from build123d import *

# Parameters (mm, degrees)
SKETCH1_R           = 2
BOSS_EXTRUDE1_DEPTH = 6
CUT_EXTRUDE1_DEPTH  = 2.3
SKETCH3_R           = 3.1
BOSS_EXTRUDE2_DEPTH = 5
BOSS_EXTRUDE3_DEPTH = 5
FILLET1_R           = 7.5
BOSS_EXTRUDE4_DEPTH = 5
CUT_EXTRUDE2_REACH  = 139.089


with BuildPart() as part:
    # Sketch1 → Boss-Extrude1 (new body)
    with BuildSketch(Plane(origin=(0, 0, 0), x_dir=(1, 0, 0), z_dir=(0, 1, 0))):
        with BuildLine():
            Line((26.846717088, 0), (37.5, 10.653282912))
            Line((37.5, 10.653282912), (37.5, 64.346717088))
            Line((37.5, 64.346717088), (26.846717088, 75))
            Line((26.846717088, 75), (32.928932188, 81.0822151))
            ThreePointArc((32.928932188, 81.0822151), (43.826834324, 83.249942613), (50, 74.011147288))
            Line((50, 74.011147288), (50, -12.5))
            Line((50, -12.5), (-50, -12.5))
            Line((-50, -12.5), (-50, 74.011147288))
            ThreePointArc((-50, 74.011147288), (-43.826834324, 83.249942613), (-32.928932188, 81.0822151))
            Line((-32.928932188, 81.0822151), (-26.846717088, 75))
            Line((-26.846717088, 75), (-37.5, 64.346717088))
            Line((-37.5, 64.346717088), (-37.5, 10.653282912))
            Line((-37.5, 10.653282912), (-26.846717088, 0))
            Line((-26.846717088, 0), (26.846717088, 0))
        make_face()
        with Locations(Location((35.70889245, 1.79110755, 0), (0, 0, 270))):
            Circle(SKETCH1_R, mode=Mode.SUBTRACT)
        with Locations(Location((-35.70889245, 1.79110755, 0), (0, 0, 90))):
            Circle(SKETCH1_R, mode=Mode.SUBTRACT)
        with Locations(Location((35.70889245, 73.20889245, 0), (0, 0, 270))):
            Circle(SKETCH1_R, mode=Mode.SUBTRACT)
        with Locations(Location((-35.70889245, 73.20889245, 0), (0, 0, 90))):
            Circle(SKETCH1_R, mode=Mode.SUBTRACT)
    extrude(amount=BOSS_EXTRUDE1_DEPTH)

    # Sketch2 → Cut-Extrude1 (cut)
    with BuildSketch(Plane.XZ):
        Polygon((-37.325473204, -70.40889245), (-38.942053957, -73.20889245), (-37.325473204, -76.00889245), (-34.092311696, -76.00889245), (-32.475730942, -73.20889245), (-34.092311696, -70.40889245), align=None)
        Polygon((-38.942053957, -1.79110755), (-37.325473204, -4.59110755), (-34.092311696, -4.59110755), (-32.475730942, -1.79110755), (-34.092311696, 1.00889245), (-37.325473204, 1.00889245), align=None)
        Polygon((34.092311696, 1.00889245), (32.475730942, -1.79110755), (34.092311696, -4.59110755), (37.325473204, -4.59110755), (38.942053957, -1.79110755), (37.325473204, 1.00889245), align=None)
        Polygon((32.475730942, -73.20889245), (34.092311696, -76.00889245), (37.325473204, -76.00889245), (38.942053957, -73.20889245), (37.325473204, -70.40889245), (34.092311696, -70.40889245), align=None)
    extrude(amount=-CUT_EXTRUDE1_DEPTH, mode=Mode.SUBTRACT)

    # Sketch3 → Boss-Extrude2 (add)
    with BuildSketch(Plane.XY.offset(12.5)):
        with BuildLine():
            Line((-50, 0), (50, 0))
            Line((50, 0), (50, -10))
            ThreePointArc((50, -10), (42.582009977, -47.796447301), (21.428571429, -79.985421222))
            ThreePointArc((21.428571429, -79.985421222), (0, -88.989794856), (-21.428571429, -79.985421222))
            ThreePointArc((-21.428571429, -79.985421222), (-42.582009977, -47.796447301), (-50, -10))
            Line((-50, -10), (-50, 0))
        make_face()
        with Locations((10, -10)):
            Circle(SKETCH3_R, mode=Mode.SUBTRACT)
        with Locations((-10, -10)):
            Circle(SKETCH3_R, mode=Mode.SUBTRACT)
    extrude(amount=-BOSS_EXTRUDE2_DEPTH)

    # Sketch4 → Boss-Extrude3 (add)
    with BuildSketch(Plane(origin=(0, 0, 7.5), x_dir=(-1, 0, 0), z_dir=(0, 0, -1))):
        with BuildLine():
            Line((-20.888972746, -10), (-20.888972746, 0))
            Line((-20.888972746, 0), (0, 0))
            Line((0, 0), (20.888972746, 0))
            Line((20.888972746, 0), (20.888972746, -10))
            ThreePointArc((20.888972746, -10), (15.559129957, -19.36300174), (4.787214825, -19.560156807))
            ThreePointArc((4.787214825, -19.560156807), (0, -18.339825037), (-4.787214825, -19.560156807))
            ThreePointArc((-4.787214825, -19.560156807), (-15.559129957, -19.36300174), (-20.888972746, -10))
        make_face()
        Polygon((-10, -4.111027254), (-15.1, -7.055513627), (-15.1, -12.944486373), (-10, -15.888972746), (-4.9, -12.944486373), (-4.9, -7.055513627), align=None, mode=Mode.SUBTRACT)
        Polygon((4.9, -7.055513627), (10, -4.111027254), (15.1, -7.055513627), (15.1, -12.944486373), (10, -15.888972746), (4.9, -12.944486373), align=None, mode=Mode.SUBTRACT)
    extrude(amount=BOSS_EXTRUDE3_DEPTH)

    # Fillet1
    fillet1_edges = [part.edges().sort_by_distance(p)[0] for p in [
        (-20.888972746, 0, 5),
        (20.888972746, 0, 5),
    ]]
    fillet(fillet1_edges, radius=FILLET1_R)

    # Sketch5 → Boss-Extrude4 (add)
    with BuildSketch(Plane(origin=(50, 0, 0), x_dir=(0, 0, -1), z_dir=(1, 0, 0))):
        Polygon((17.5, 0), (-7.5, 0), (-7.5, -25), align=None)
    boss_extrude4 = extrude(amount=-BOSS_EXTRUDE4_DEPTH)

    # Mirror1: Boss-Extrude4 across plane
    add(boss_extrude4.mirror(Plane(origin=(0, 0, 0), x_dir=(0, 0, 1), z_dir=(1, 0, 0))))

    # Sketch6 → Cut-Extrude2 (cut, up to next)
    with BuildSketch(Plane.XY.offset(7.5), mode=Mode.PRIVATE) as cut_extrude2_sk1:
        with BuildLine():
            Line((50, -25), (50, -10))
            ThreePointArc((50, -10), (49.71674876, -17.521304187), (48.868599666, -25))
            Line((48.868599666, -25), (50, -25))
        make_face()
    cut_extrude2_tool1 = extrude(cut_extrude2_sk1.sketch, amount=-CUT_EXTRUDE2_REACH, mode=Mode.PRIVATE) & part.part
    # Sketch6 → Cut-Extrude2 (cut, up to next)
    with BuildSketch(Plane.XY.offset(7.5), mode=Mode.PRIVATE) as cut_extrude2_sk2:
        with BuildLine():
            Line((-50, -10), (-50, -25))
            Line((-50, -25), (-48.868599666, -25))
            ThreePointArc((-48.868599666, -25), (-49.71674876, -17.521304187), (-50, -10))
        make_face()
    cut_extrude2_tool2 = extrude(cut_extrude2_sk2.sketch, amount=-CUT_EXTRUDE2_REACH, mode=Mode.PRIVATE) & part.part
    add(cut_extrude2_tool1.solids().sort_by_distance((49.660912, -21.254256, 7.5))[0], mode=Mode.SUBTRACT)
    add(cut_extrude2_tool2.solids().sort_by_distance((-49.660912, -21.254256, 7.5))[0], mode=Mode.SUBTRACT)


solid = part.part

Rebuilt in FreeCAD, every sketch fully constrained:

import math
import FreeCAD as App
import Part
import Sketcher

V = App.Vector
Q = App.Units.Quantity


def edges_at(feature, points):
    """Names of the edges that pass closest to the given points."""
    edges = feature.Shape.Edges
    near = lambda p: min(range(len(edges)), key=lambda i: edges[i].distToShape(Part.Vertex(*p))[0])
    return sorted({f"Edge{near(p) + 1}" for p in points})


def add_polygon(sketch, points):
    """Adds a closed chain of lines whose ends are joined by coincident constraints."""
    first, n = sketch.GeometryCount, len(points)
    for a, b in zip(points, points[1:] + points[:1]):
        sketch.addGeometry(Part.LineSegment(App.Vector(*a, 0), App.Vector(*b, 0)), False)
    for i in range(n):
        sketch.addConstraint(Sketcher.Constraint("Coincident", first + i, 2, first + (i + 1) % n, 1))

doc = App.newDocument("Part")
body = doc.addObject("PartDesign::Body", "Body")

# Sketch on XZ plane
sketch1 = body.newObject("Sketcher::SketchObject", "Sketch")
sketch1.AttachmentSupport = (doc.getObject("XZ_Plane"), [""])
sketch1.MapMode = "FlatFace"
sketch1.addGeometry(Part.LineSegment(V(37.5, -10.653283, 0), V(26.846717, 0, 0)), False)
sketch1.addGeometry(Part.LineSegment(V(26.846717, 0, 0), V(-26.846717, 0, 0)), False)
sketch1.addGeometry(Part.LineSegment(V(-26.846717, 0, 0), V(-37.5, -10.653283, 0)), False)
sketch1.addGeometry(Part.LineSegment(V(-37.5, -10.653283, 0), V(-37.5, -64.346717, 0)), False)
sketch1.addGeometry(Part.LineSegment(V(-37.5, -64.346717, 0), V(-26.846717, -75, 0)), False)
sketch1.addGeometry(Part.LineSegment(V(-26.846717, -75, 0), V(-32.928932, -81.082215, 0)), False)
sketch1.addGeometry(Part.ArcOfCircle(Part.Circle(V(-40, -74.011147, 0), V(0, 0, 1), 10), math.radians(180), math.radians(315)), False)
sketch1.addGeometry(Part.LineSegment(V(-50, -74.011147, 0), V(-50, 12.5, 0)), False)
sketch1.addGeometry(Part.LineSegment(V(-50, 12.5, 0), V(50, 12.5, 0)), False)
sketch1.addGeometry(Part.LineSegment(V(50, 12.5, 0), V(50, -74.011147, 0)), False)
sketch1.addGeometry(Part.ArcOfCircle(Part.Circle(V(40, -74.011147, 0), V(0, 0, 1), 10), math.radians(-135), math.radians(0)), False)
sketch1.addGeometry(Part.LineSegment(V(32.928932, -81.082215, 0), V(26.846717, -75, 0)), False)
sketch1.addGeometry(Part.LineSegment(V(26.846717, -75, 0), V(37.5, -64.346717, 0)), False)
sketch1.addGeometry(Part.LineSegment(V(37.5, -64.346717, 0), V(37.5, -10.653283, 0)), False)
sketch1.addGeometry(Part.Circle(V(35.708892, -1.791108, 0), V(0, 0, 1), 2), False)
sketch1.addGeometry(Part.Circle(V(-35.708892, -1.791108, 0), V(0, 0, 1), 2), False)
sketch1.addGeometry(Part.Circle(V(35.708892, -73.208892, 0), V(0, 0, 1), 2), False)
sketch1.addGeometry(Part.Circle(V(-35.708892, -73.208892, 0), V(0, 0, 1), 2), False)
sketch1.addConstraint(Sketcher.Constraint("Coincident", 0, 2, 1, 1))
sketch1.addConstraint(Sketcher.Constraint("Coincident", 1, 2, 2, 1))
sketch1.addConstraint(Sketcher.Constraint("Coincident", 2, 2, 3, 1))
sketch1.addConstraint(Sketcher.Constraint("Coincident", 3, 2, 4, 1))
sketch1.addConstraint(Sketcher.Constraint("Coincident", 4, 2, 5, 1))
sketch1.addConstraint(Sketcher.Constraint("Tangent", 5, 2, 6, 2))
sketch1.addConstraint(Sketcher.Constraint("Tangent", 6, 1, 7, 1))
sketch1.addConstraint(Sketcher.Constraint("Coincident", 7, 2, 8, 1))
sketch1.addConstraint(Sketcher.Constraint("Coincident", 8, 2, 9, 1))
sketch1.addConstraint(Sketcher.Constraint("Tangent", 9, 2, 10, 2))
sketch1.addConstraint(Sketcher.Constraint("Tangent", 10, 1, 11, 1))
sketch1.addConstraint(Sketcher.Constraint("Coincident", 11, 2, 12, 1))
sketch1.addConstraint(Sketcher.Constraint("Coincident", 12, 2, 13, 1))
sketch1.addConstraint(Sketcher.Constraint("Coincident", 13, 2, 0, 1))
sketch1.addConstraint(Sketcher.Constraint("Horizontal", 1))
sketch1.addConstraint(Sketcher.Constraint("Vertical", 3))
sketch1.addConstraint(Sketcher.Constraint("Vertical", 7))
sketch1.addConstraint(Sketcher.Constraint("Horizontal", 8))
sketch1.addConstraint(Sketcher.Constraint("Vertical", 9))
sketch1.addConstraint(Sketcher.Constraint("Vertical", 13))
sketch1.addConstraint(Sketcher.Constraint("Equal", 6, 10))
sketch1.addConstraint(Sketcher.Constraint("Equal", 14, 15))
sketch1.addConstraint(Sketcher.Constraint("Equal", 15, 16))
sketch1.addConstraint(Sketcher.Constraint("Equal", 16, 17))
sketch1.addConstraint(Sketcher.Constraint("Symmetric", 0, 2, 1, 2, -1, 1))
sketch1.addConstraint(Sketcher.Constraint("Symmetric", 6, 3, 10, 3, -2))
sketch1.addConstraint(Sketcher.Constraint("Symmetric", 14, 3, 15, 3, -2))
sketch1.addConstraint(Sketcher.Constraint("Symmetric", 16, 3, 17, 3, -2))
sketch1.addConstraint(Sketcher.Constraint("Symmetric", 4, 2, 11, 2, -2))
sketch1.addConstraint(Sketcher.Constraint("Symmetric", 3, 2, 12, 2, -2))
sketch1.addConstraint(Sketcher.Constraint("Perpendicular", 0, 2))
sketch1.addConstraint(Sketcher.Constraint("Perpendicular", 2, 4))
sketch1.addConstraint(Sketcher.Constraint("Perpendicular", 4, 5))
sketch1.addConstraint(Sketcher.Constraint("Perpendicular", 5, 11))
sketch1.addConstraint(Sketcher.Constraint("Vertical", 14, 3, 16, 3))
sketch1.addConstraint(Sketcher.Constraint("Vertical", 1, 2, 4, 2))
sketch1.addConstraint(Sketcher.Constraint("Equal", 1, 3))
sketch1.addConstraint(Sketcher.Constraint("Diameter", 14, Q("4 mm")))
sketch1.addConstraint(Sketcher.Constraint("Radius", 6, Q("10 mm")))
sketch1.addConstraint(Sketcher.Constraint("DistanceX", 8, 1, 8, 2, Q("100 mm")))
sketch1.addConstraint(Sketcher.Constraint("DistanceY", 4, 2, -1, 1, Q("75 mm")))
sketch1.addConstraint(Sketcher.Constraint("DistanceY", -1, 1, 7, 2, Q("12.5 mm")))
sketch1.addConstraint(Sketcher.Constraint("DistanceY", 5, 2, 3, 2, Q("16.735498 mm")))
sketch1.addConstraint(Sketcher.Constraint("DistanceY", 10, 3, 14, 3, Q("72.22004 mm")))
sketch1.addConstraint(Sketcher.Constraint("DistanceX", 15, 3, 0, 2, Q("62.55561 mm")))
sketch1.addConstraint(Sketcher.Constraint("DistanceY", 17, 3, 2, 2, Q("62.55561 mm")))
pad1 = body.newObject("PartDesign::Pad", "Pad")
pad1.Profile = sketch1
pad1.Length = 6
pad1.Reversed = True

# Sketch on XZ plane
sketch2 = body.newObject("Sketcher::SketchObject", "Sketch001")
sketch2.AttachmentSupport = (doc.getObject("XZ_Plane"), [""])
sketch2.MapMode = "FlatFace"
add_polygon(sketch2, [(-37.325473, -70.408892), (-38.942054, -73.208892), (-37.325473, -76.008892), (-34.092312, -76.008892), (-32.475731, -73.208892), (-34.092312, -70.408892)])  # lines 0-5
add_polygon(sketch2, [(-38.942054, -1.791108), (-37.325473, -4.591108), (-34.092312, -4.591108), (-32.475731, -1.791108), (-34.092312, 1.008892), (-37.325473, 1.008892)])  # lines 6-11
add_polygon(sketch2, [(34.092312, 1.008892), (32.475731, -1.791108), (34.092312, -4.591108), (37.325473, -4.591108), (38.942054, -1.791108), (37.325473, 1.008892)])  # lines 12-17
add_polygon(sketch2, [(32.475731, -73.208892), (34.092312, -76.008892), (37.325473, -76.008892), (38.942054, -73.208892), (37.325473, -70.408892), (34.092312, -70.408892)])  # lines 18-23
sketch2.addConstraint(Sketcher.Constraint("Horizontal", 2))
sketch2.addConstraint(Sketcher.Constraint("Horizontal", 5))
sketch2.addConstraint(Sketcher.Constraint("Horizontal", 7))
sketch2.addConstraint(Sketcher.Constraint("Horizontal", 10))
sketch2.addConstraint(Sketcher.Constraint("Horizontal", 14))
sketch2.addConstraint(Sketcher.Constraint("Horizontal", 17))
sketch2.addConstraint(Sketcher.Constraint("Horizontal", 19))
sketch2.addConstraint(Sketcher.Constraint("Horizontal", 22))
sketch2.addConstraint(Sketcher.Constraint("Symmetric", 8, 2, 12, 2, -2))
sketch2.addConstraint(Sketcher.Constraint("Symmetric", 7, 2, 13, 2, -2))
sketch2.addConstraint(Sketcher.Constraint("Symmetric", 11, 2, 15, 2, -2))
sketch2.addConstraint(Sketcher.Constraint("Symmetric", 10, 2, 16, 2, -2))
sketch2.addConstraint(Sketcher.Constraint("Symmetric", 2, 2, 18, 2, -2))
sketch2.addConstraint(Sketcher.Constraint("Symmetric", 0, 2, 20, 2, -2))
sketch2.addConstraint(Sketcher.Constraint("Symmetric", 5, 2, 21, 2, -2))
sketch2.addConstraint(Sketcher.Constraint("Symmetric", 3, 2, 23, 2, -2))
sketch2.addConstraint(Sketcher.Constraint("Parallel", 0, 3))
sketch2.addConstraint(Sketcher.Constraint("Parallel", 1, 4))
sketch2.addConstraint(Sketcher.Constraint("Parallel", 4, 6))
sketch2.addConstraint(Sketcher.Constraint("Parallel", 3, 8))
sketch2.addConstraint(Sketcher.Constraint("Parallel", 6, 9))
sketch2.addConstraint(Sketcher.Constraint("Parallel", 8, 11))
sketch2.addConstraint(Sketcher.Constraint("Parallel", 11, 12))
sketch2.addConstraint(Sketcher.Constraint("Parallel", 9, 13))
sketch2.addConstraint(Sketcher.Constraint("Parallel", 12, 15))
sketch2.addConstraint(Sketcher.Constraint("Parallel", 15, 20))
sketch2.addConstraint(Sketcher.Constraint("Parallel", 20, 23))
sketch2.addConstraint(Sketcher.Constraint("Horizontal", 0, 2, 3, 2))
sketch2.addConstraint(Sketcher.Constraint("Horizontal", 8, 2, 11, 2))
sketch2.addConstraint(Sketcher.Constraint("Vertical", 2, 2, 4, 2))
sketch2.addConstraint(Sketcher.Constraint("Vertical", 5, 2, 6, 2))
sketch2.addConstraint(Sketcher.Constraint("Vertical", 4, 2, 7, 2))
sketch2.addConstraint(Sketcher.Constraint("Vertical", 3, 2, 8, 2))
sketch2.addConstraint(Sketcher.Constraint("Vertical", 7, 2, 9, 2))
sketch2.addConstraint(Sketcher.Constraint("Angle", 0, Q("-120 deg")))
sketch2.addConstraint(Sketcher.Constraint("DistanceY", 1, 2, 0, 2, Q("2.8 mm")))
sketch2.addConstraint(Sketcher.Constraint("DistanceX", 2, 1, 2, 2, Q("3.233162 mm")))
sketch2.addConstraint(Sketcher.Constraint("DistanceX", 2, 2, -1, 1, Q("34.092312 mm")))
sketch2.addConstraint(Sketcher.Constraint("DistanceY", 0, 2, -1, 1, Q("73.208892 mm")))
sketch2.addConstraint(Sketcher.Constraint("DistanceY", 6, 2, -1, 1, Q("4.591108 mm")))
pocket1 = body.newObject("PartDesign::Pocket", "Pocket")
pocket1.Profile = sketch2
pocket1.Length = 2.3

# Sketch on XY plane
sketch3 = body.newObject("Sketcher::SketchObject", "Sketch002")
sketch3.AttachmentSupport = (doc.getObject("XY_Plane"), [""])
sketch3.MapMode = "FlatFace"
sketch3.AttachmentOffset = App.Placement(V(0, 0, 12.5), App.Rotation())
sketch3.addGeometry(Part.LineSegment(V(50, 0, 0), V(-50, 0, 0)), False)
sketch3.addGeometry(Part.LineSegment(V(-50, 0, 0), V(-50, -10, 0)), False)
sketch3.addGeometry(Part.ArcOfCircle(Part.Circle(V(50, -10, 0), V(0, 0, 1), 100), math.radians(-180), math.radians(-135.584691)), False)
sketch3.addGeometry(Part.ArcOfCircle(Part.Circle(V(0, -58.989795, 0), V(0, 0, 1), 30), math.radians(-135.584691), math.radians(-44.415309)), False)
sketch3.addGeometry(Part.ArcOfCircle(Part.Circle(V(-50, -10, 0), V(0, 0, 1), 100), math.radians(-44.415309), math.radians(0)), False)
sketch3.addGeometry(Part.LineSegment(V(50, -10, 0), V(50, 0, 0)), False)
sketch3.addGeometry(Part.Circle(V(10, -10, 0), V(0, 0, 1), 3.1), False)
sketch3.addGeometry(Part.Circle(V(-10, -10, 0), V(0, 0, 1), 3.1), False)
sketch3.addConstraint(Sketcher.Constraint("Coincident", 0, 2, 1, 1))
sketch3.addConstraint(Sketcher.Constraint("Tangent", 1, 2, 2, 1))
sketch3.addConstraint(Sketcher.Constraint("Tangent", 2, 2, 3, 1))
sketch3.addConstraint(Sketcher.Constraint("Tangent", 3, 2, 4, 1))
sketch3.addConstraint(Sketcher.Constraint("Tangent", 4, 2, 5, 1))
sketch3.addConstraint(Sketcher.Constraint("Coincident", 5, 2, 0, 1))
sketch3.addConstraint(Sketcher.Constraint("Horizontal", 0))
sketch3.addConstraint(Sketcher.Constraint("Vertical", 1))
sketch3.addConstraint(Sketcher.Constraint("Vertical", 5))
sketch3.addConstraint(Sketcher.Constraint("Coincident", 1, 2, 4, 3))
sketch3.addConstraint(Sketcher.Constraint("Equal", 2, 4))
sketch3.addConstraint(Sketcher.Constraint("Equal", 6, 7))
sketch3.addConstraint(Sketcher.Constraint("Symmetric", 0, 2, 5, 2, -1, 1))
sketch3.addConstraint(Sketcher.Constraint("Symmetric", 6, 3, 7, 3, -2))
sketch3.addConstraint(Sketcher.Constraint("Horizontal", 4, 3, 6, 3))
sketch3.addConstraint(Sketcher.Constraint("Radius", 2, Q("100 mm")))
sketch3.addConstraint(Sketcher.Constraint("Radius", 3, Q("30 mm")))
sketch3.addConstraint(Sketcher.Constraint("Diameter", 6, Q("6.2 mm")))
sketch3.addConstraint(Sketcher.Constraint("DistanceY", 1, 2, 1, 1, Q("10 mm")))
sketch3.addConstraint(Sketcher.Constraint("DistanceX", -1, 1, 6, 3, Q("10 mm")))
pad2 = body.newObject("PartDesign::Pad", "Pad001")
pad2.Profile = sketch3
pad2.Length = 5
pad2.Reversed = True

# Sketch on XY plane
sketch4 = body.newObject("Sketcher::SketchObject", "Sketch003")
sketch4.AttachmentSupport = (doc.getObject("XY_Plane"), [""])
sketch4.MapMode = "FlatFace"
sketch4.AttachmentOffset = App.Placement(V(0, 0, 7.5), App.Rotation())
sketch4.addGeometry(Part.LineSegment(V(20.888973, 0, 0), V(20.888973, -10, 0)), False)  # 0
sketch4.addGeometry(Part.ArcOfCircle(Part.Circle(V(10, -10, 0), V(0, 0, 1), 10.888973), math.radians(-118.601933), math.radians(0)), False)  # 1
sketch4.addGeometry(Part.ArcOfCircle(Part.Circle(V(0, -28.339825, 0), V(0, 0, 1), 10), math.radians(61.398067), math.radians(118.601933)), False)  # 2
sketch4.addGeometry(Part.ArcOfCircle(Part.Circle(V(-10, -10, 0), V(0, 0, 1), 10.888973), math.radians(180), math.radians(298.601933)), False)  # 3
sketch4.addGeometry(Part.LineSegment(V(-20.888973, -10, 0), V(-20.888973, 0, 0)), False)  # 4
sketch4.addGeometry(Part.LineSegment(V(-20.888973, 0, 0), V(20.888973, 0, 0)), False)  # 5
add_polygon(sketch4, [(-4.9, -7.055514), (-10, -4.111027), (-15.1, -7.055514), (-15.1, -12.944486), (-10, -15.888973), (-4.9, -12.944486)])  # lines 6-11
add_polygon(sketch4, [(10, -4.111027), (4.9, -7.055514), (4.9, -12.944486), (10, -15.888973), (15.1, -12.944486), (15.1, -7.055514)])  # lines 12-17
sketch4.addConstraint(Sketcher.Constraint("Tangent", 0, 2, 1, 2))
sketch4.addConstraint(Sketcher.Constraint("Tangent", 1, 1, 2, 1))
sketch4.addConstraint(Sketcher.Constraint("Tangent", 2, 2, 3, 2))
sketch4.addConstraint(Sketcher.Constraint("Tangent", 3, 1, 4, 1))
sketch4.addConstraint(Sketcher.Constraint("Coincident", 4, 2, 5, 1))
sketch4.addConstraint(Sketcher.Constraint("Coincident", 5, 2, 0, 1))
sketch4.addConstraint(Sketcher.Constraint("Vertical", 0))
sketch4.addConstraint(Sketcher.Constraint("Vertical", 4))
sketch4.addConstraint(Sketcher.Constraint("Horizontal", 5))
sketch4.addConstraint(Sketcher.Constraint("Vertical", 8))
sketch4.addConstraint(Sketcher.Constraint("Vertical", 11))
sketch4.addConstraint(Sketcher.Constraint("Vertical", 13))
sketch4.addConstraint(Sketcher.Constraint("Vertical", 16))
sketch4.addConstraint(Sketcher.Constraint("Equal", 1, 3))
sketch4.addConstraint(Sketcher.Constraint("Symmetric", 4, 2, 5, 2, -1, 1))
sketch4.addConstraint(Sketcher.Constraint("Symmetric", 11, 2, 12, 2, -2))
sketch4.addConstraint(Sketcher.Constraint("Symmetric", 9, 2, 14, 2, -2))
sketch4.addConstraint(Sketcher.Constraint("Symmetric", 8, 2, 15, 2, -2))
sketch4.addConstraint(Sketcher.Constraint("Symmetric", 6, 2, 17, 2, -2))
sketch4.addConstraint(Sketcher.Constraint("PointOnObject", 2, 3, -2))
sketch4.addConstraint(Sketcher.Constraint("Parallel", 6, 9))
sketch4.addConstraint(Sketcher.Constraint("Parallel", 7, 10))
sketch4.addConstraint(Sketcher.Constraint("Parallel", 10, 12))
sketch4.addConstraint(Sketcher.Constraint("Parallel", 9, 14))
sketch4.addConstraint(Sketcher.Constraint("Parallel", 14, 17))
sketch4.addConstraint(Sketcher.Constraint("Horizontal", 8, 2, 10, 2))
sketch4.addConstraint(Sketcher.Constraint("Horizontal", 7, 2, 11, 2))
sketch4.addConstraint(Sketcher.Constraint("Vertical", 3, 3, 6, 2))
sketch4.addConstraint(Sketcher.Constraint("Radius", 2, Q("10 mm")))
sketch4.addConstraint(Sketcher.Constraint("DistanceY", 0, 2, 0, 1, Q("10 mm")))
sketch4.addConstraint(Sketcher.Constraint("Angle", 6, Q("150 deg")))
sketch4.addConstraint(Sketcher.Constraint("DistanceX", -1, 1, 1, 3, Q("10 mm")))
sketch4.addConstraint(Sketcher.Constraint("DistanceX", 7, 2, -1, 1, Q("15.1 mm")))
sketch4.addConstraint(Sketcher.Constraint("Radius", 1, Q("10.888973 mm")))
sketch4.addConstraint(Sketcher.Constraint("DistanceY", 8, 2, 8, 1, Q("5.888973 mm")))
sketch4.addConstraint(Sketcher.Constraint("DistanceY", 2, 2, 6, 2, Q("15.44913 mm")))
pad3 = body.newObject("PartDesign::Pad", "Pad002")
pad3.Profile = sketch4
pad3.Length = 5
pad3.Reversed = True
doc.recompute()

fillet = body.newObject("PartDesign::Fillet", "Fillet")
fillet.Base = (pad3, edges_at(pad3, [(-20.889, 0, 5), (20.889, 0, 5)]))
fillet.Radius = 7.5

# Sketch on YZ plane
sketch5 = body.newObject("Sketcher::SketchObject", "Sketch004")
sketch5.AttachmentSupport = (doc.getObject("YZ_Plane"), [""])
sketch5.MapMode = "FlatFace"
sketch5.AttachmentOffset = App.Placement(V(0, 0, 50), App.Rotation())
add_polygon(sketch5, [(0, -17.5), (0, 7.5), (-25, 7.5)])  # lines 0-2
sketch5.addConstraint(Sketcher.Constraint("Vertical", 0))
sketch5.addConstraint(Sketcher.Constraint("Horizontal", 1))
sketch5.addConstraint(Sketcher.Constraint("PointOnObject", 0, 2, -2))
sketch5.addConstraint(Sketcher.Constraint("Equal", 1, 0))
sketch5.addConstraint(Sketcher.Constraint("DistanceX", 1, 2, 1, 1, Q("25 mm")))
sketch5.addConstraint(Sketcher.Constraint("DistanceY", -1, 1, 0, 2, Q("7.5 mm")))
pad4 = body.newObject("PartDesign::Pad", "Pad003")
pad4.Profile = sketch5
pad4.Length = 5
pad4.Reversed = True
doc.recompute()

mirrored = body.newObject("PartDesign::Mirrored", "Mirrored")
mirrored.Originals = [pad4]
mirrored.MirrorPlane = (doc.getObject("YZ_Plane"), [""])
body.Tip = mirrored

# Sketch on XY plane
sketch6 = body.newObject("Sketcher::SketchObject", "Sketch005")
sketch6.AttachmentSupport = (doc.getObject("XY_Plane"), [""])
sketch6.MapMode = "FlatFace"
sketch6.AttachmentOffset = App.Placement(V(0, 0, 7.5), App.Rotation())
sketch6.addGeometry(Part.LineSegment(V(50, -25, 0), V(50, -10, 0)), False)
sketch6.addGeometry(Part.ArcOfCircle(Part.Circle(V(-50, -10, 0), V(0, 0, 1), 100), math.radians(-8.626927), math.radians(0)), False)
sketch6.addGeometry(Part.LineSegment(V(48.8686, -25, 0), V(50, -25, 0)), False)
sketch6.addConstraint(Sketcher.Constraint("Tangent", 0, 2, 1, 2))
sketch6.addConstraint(Sketcher.Constraint("Coincident", 1, 1, 2, 1))
sketch6.addConstraint(Sketcher.Constraint("Coincident", 2, 2, 0, 1))
sketch6.addConstraint(Sketcher.Constraint("Vertical", 0))
sketch6.addConstraint(Sketcher.Constraint("Horizontal", 2))
sketch6.addConstraint(Sketcher.Constraint("Radius", 1, Q("100 mm")))
sketch6.addConstraint(Sketcher.Constraint("DistanceY", 0, 1, 0, 2, Q("15 mm")))
sketch6.addConstraint(Sketcher.Constraint("DistanceX", 1, 3, -1, 1, Q("50 mm")))
sketch6.addConstraint(Sketcher.Constraint("DistanceY", 1, 3, -1, 1, Q("10 mm")))
pocket2 = body.newObject("PartDesign::Pocket", "Pocket001")
pocket2.Profile = sketch6
pocket2.Length = 15

# Sketch on XY plane
sketch7 = body.newObject("Sketcher::SketchObject", "Sketch006")
sketch7.AttachmentSupport = (doc.getObject("XY_Plane"), [""])
sketch7.MapMode = "FlatFace"
sketch7.AttachmentOffset = App.Placement(V(0, 0, 7.5), App.Rotation())
sketch7.addGeometry(Part.LineSegment(V(-50, -10, 0), V(-50, -25, 0)), False)
sketch7.addGeometry(Part.LineSegment(V(-50, -25, 0), V(-48.8686, -25, 0)), False)
sketch7.addGeometry(Part.ArcOfCircle(Part.Circle(V(50, -10, 0), V(0, 0, 1), 100), math.radians(-180), math.radians(-171.373073)), False)
sketch7.addConstraint(Sketcher.Constraint("Coincident", 0, 2, 1, 1))
sketch7.addConstraint(Sketcher.Constraint("Coincident", 1, 2, 2, 2))
sketch7.addConstraint(Sketcher.Constraint("Tangent", 2, 1, 0, 1))
sketch7.addConstraint(Sketcher.Constraint("Vertical", 0))
sketch7.addConstraint(Sketcher.Constraint("Horizontal", 1))
sketch7.addConstraint(Sketcher.Constraint("Radius", 2, Q("100 mm")))
sketch7.addConstraint(Sketcher.Constraint("DistanceY", 0, 2, 0, 1, Q("15 mm")))
sketch7.addConstraint(Sketcher.Constraint("DistanceX", -1, 1, 2, 3, Q("50 mm")))
sketch7.addConstraint(Sketcher.Constraint("DistanceY", 2, 3, -1, 1, Q("10 mm")))
pocket3 = body.newObject("PartDesign::Pocket", "Pocket002")
pocket3.Profile = sketch7
pocket3.Length = 15

doc.recompute()
